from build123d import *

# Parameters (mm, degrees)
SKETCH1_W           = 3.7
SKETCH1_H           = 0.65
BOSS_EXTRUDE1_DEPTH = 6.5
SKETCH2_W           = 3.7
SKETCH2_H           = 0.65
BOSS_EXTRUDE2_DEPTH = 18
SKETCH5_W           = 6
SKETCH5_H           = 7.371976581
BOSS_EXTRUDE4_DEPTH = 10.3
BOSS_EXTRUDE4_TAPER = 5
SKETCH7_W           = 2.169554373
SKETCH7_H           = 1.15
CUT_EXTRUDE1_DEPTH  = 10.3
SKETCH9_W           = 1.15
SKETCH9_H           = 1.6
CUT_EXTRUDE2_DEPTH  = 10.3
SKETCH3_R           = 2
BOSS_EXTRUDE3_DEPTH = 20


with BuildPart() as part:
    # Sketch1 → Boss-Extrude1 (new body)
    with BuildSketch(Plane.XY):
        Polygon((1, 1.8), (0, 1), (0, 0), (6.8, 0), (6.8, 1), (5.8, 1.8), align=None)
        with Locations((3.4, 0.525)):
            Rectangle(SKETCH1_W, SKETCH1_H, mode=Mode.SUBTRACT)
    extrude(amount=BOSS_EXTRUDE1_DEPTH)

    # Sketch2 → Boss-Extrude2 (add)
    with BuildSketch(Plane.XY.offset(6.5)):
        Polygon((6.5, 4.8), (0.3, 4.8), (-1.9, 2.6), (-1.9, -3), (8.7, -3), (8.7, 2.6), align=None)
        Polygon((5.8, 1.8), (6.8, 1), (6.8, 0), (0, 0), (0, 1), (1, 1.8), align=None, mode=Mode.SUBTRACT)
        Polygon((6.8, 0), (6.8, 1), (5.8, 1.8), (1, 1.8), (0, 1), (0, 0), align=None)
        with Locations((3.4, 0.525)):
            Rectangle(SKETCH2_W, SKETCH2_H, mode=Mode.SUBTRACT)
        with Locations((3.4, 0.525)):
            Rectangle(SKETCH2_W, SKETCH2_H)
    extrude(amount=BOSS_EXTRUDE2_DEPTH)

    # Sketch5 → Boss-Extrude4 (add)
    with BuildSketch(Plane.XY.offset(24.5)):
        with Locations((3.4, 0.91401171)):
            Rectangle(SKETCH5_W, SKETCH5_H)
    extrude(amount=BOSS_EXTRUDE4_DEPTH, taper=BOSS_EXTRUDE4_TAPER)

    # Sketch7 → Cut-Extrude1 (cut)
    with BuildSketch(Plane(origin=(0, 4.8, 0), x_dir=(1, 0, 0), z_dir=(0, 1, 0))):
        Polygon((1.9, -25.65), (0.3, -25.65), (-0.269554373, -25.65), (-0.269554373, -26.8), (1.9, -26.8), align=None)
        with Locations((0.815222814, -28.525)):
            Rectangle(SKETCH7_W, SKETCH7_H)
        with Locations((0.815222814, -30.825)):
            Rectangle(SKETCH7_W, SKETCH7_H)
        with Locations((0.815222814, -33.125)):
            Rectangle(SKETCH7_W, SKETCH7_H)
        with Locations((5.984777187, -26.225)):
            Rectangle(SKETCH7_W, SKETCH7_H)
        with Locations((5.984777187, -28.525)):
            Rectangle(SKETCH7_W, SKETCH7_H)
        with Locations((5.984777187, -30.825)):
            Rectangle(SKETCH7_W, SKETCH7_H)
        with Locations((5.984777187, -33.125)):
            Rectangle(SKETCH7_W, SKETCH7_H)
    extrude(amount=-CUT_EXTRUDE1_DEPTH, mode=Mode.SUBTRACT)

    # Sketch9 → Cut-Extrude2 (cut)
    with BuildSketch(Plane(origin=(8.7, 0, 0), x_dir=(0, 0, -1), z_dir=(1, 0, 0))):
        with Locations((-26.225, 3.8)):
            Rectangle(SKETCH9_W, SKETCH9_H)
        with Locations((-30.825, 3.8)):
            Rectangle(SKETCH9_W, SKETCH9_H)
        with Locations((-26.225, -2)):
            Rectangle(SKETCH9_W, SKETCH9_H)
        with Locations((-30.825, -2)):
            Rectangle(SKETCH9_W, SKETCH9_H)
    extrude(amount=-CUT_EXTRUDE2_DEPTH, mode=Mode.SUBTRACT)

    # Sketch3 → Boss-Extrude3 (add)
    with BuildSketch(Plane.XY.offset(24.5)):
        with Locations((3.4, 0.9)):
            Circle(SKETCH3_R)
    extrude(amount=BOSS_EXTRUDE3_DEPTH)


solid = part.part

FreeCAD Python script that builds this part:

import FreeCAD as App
import Part
import Sketcher

V = App.Vector


def add_polygon(sketch, points):
    """Adds a closed chain of lines whose ends are joined by coincident constraints."""
    first, n = sketch.GeometryCount, len(points)
    for a, b in zip(points, points[1:] + points[:1]):
        sketch.addGeometry(Part.LineSegment(App.Vector(*a, 0), App.Vector(*b, 0)), False)
    for i in range(n):
        sketch.addConstraint(Sketcher.Constraint("Coincident", first + i, 2, first + (i + 1) % n, 1))

doc = App.newDocument("Part")
params = doc.addObject("Spreadsheet::Sheet", "Params")
for row, (alias, value) in enumerate([
    ("sketch1_height", "1 mm"),
    ("sketch1_width", "6.8 mm"),
    ("sketch1_width2", "4.8 mm"),
    ("sketch1_width3", "3.7 mm"),
    ("sketch1_height2", "0.65 mm"),
    ("pad1_length", "6.5 mm"),
    ("sketch2_width", "6.2 mm"),
    ("sketch2_width2", "10.6 mm"),
    ("sketch2_height", "5.6 mm"),
    ("pad2_length", "18 mm"),
    ("sketch3_width", "6 mm"),
    ("pad3_length", "10.3 mm"),
    ("pad3_taper", "-5 deg"),
    ("sketch4_height", "1.15 mm"),
    ("pocket1_length", "10.3 mm"),
    ("sketch5_width", "1.6 mm"),
    ("sketch5_height", "1.15 mm"),
    ("pocket2_length", "10.3 mm"),
    ("sketch6_diameter", "4 mm"),
    ("pad4_length", "20 mm"),
], start=1):
    params.set(f"A{row}", alias)
    params.set(f"B{row}", "=" + value)
    params.setAlias(f"B{row}", alias)

body = doc.addObject("PartDesign::Body", "Body")

# Sketch on XY plane
sketch1 = body.newObject("Sketcher::SketchObject", "Sketch")
sketch1.AttachmentSupport = (doc.getObject("XY_Plane"), [""])
sketch1.MapMode = "FlatFace"
add_polygon(sketch1, [(1, 1.8), (0, 1), (0, 0), (6.8, 0), (6.8, 1), (5.8, 1.8)])  # lines 0-5
add_polygon(sketch1, [(5.25, 0.2), (1.55, 0.2), (1.55, 0.85), (5.25, 0.85)])  # lines 6-9
sketch1.addConstraint(Sketcher.Constraint("Vertical", 1))
sketch1.addConstraint(Sketcher.Constraint("Horizontal", 2))
sketch1.addConstraint(Sketcher.Constraint("Vertical", 3))
sketch1.addConstraint(Sketcher.Constraint("Horizontal", 5))
sketch1.addConstraint(Sketcher.Constraint("Horizontal", 6))
sketch1.addConstraint(Sketcher.Constraint("Vertical", 7))
sketch1.addConstraint(Sketcher.Constraint("Horizontal", 8))
sketch1.addConstraint(Sketcher.Constraint("Vertical", 9))
sketch1.addConstraint(Sketcher.Constraint("Coincident", 1, 2, -1, 1))
sketch1.addConstraint(Sketcher.Constraint("Horizontal", 0, 2, 3, 2))
sketch1.addConstraint(Sketcher.Constraint("Equal", 0, 4))
sketch1.addConstraint(Sketcher.Constraint("DistanceY", 1, 2, 1, 1, 1.0))
sketch1.addConstraint(Sketcher.Constraint("DistanceX", 2, 1, 2, 2, 6.8))
sketch1.addConstraint(Sketcher.Constraint("DistanceX", 5, 2, 5, 1, 4.8))
sketch1.addConstraint(Sketcher.Constraint("DistanceX", 6, 2, 6, 1, 3.7))
sketch1.addConstraint(Sketcher.Constraint("DistanceY", 7, 1, 7, 2, 0.65))
sketch1.addConstraint(Sketcher.Constraint("DistanceY", -1, 1, 4, 2, 1.8))
sketch1.addConstraint(Sketcher.Constraint("DistanceY", -1, 1, 6, 2, 0.2))
sketch1.addConstraint(Sketcher.Constraint("DistanceX", -1, 1, 6, 2, 1.55))
sketch1.setExpression("Constraints[21]", "Params.sketch1_height")
sketch1.setExpression("Constraints[22]", "Params.sketch1_width")
sketch1.setExpression("Constraints[23]", "Params.sketch1_width2")
sketch1.setExpression("Constraints[24]", "Params.sketch1_width3")
sketch1.setExpression("Constraints[25]", "Params.sketch1_height2")
pad1 = body.newObject("PartDesign::Pad", "Pad")
pad1.Profile = sketch1
pad1.setExpression("Length", "Params.pad1_length")

# Sketch on XY plane
sketch2 = body.newObject("Sketcher::SketchObject", "Sketch001")
sketch2.AttachmentSupport = (doc.getObject("XY_Plane"), [""])
sketch2.MapMode = "FlatFace"
sketch2.AttachmentOffset = App.Placement(V(0, 0, 6.5), App.Rotation())
add_polygon(sketch2, [(6.5, 4.8), (0.3, 4.8), (-1.9, 2.6), (-1.9, -3), (8.7, -3), (8.7, 2.6)])  # lines 0-5
sketch2.addConstraint(Sketcher.Constraint("Horizontal", 0))
sketch2.addConstraint(Sketcher.Constraint("Vertical", 2))
sketch2.addConstraint(Sketcher.Constraint("Horizontal", 3))
sketch2.addConstraint(Sketcher.Constraint("Vertical", 4))
sketch2.addConstraint(Sketcher.Constraint("Perpendicular", 1, 5))
sketch2.addConstraint(Sketcher.Constraint("Horizontal", 1, 2, 4, 2))
sketch2.addConstraint(Sketcher.Constraint("Equal", 1, 5))
sketch2.addConstraint(Sketcher.Constraint("DistanceX", 0, 2, 0, 1, 6.2))
sketch2.addConstraint(Sketcher.Constraint("DistanceX", 3, 1, 3, 2, 10.6))
sketch2.addConstraint(Sketcher.Constraint("DistanceY", 2, 2, 2, 1, 5.6))
sketch2.addConstraint(Sketcher.Constraint("DistanceY", 2, 2, -1, 1, 3.0))
sketch2.addConstraint(Sketcher.Constraint("DistanceX", -1, 1, 0, 2, 0.3))
sketch2.setExpression("Constraints[13]", "Params.sketch2_width")
sketch2.setExpression("Constraints[14]", "Params.sketch2_width2")
sketch2.setExpression("Constraints[15]", "Params.sketch2_height")
pad2 = body.newObject("PartDesign::Pad", "Pad001")
pad2.Profile = sketch2
pad2.setExpression("Length", "Params.pad2_length")

# Sketch on XY plane
sketch3 = body.newObject("Sketcher::SketchObject", "Sketch002")
sketch3.AttachmentSupport = (doc.getObject("XY_Plane"), [""])
sketch3.MapMode = "FlatFace"
sketch3.AttachmentOffset = App.Placement(V(0, 0, 24.5), App.Rotation())
add_polygon(sketch3, [(0.4, 4.6), (0.4, -2.771977), (6.4, -2.771977), (6.4, 4.6)])  # lines 0-3
sketch3.addConstraint(Sketcher.Constraint("Vertical", 0))
sketch3.addConstraint(Sketcher.Constraint("Horizontal", 1))
sketch3.addConstraint(Sketcher.Constraint("Vertical", 2))
sketch3.addConstraint(Sketcher.Constraint("Horizontal", 3))
sketch3.addConstraint(Sketcher.Constraint("DistanceX", 1, 1, 1, 2, 6.0))
sketch3.addConstraint(Sketcher.Constraint("DistanceX", -1, 1, 0, 2, 0.4))
sketch3.addConstraint(Sketcher.Constraint("DistanceY", -1, 1, 2, 2, 4.6))
sketch3.addConstraint(Sketcher.Constraint("DistanceY", 0, 2, 0, 1, 7.371977))
sketch3.setExpression("Constraints[8]", "Params.sketch3_width")
pad3 = body.newObject("PartDesign::Pad", "Pad002")
pad3.Profile = sketch3
pad3.setExpression("Length", "Params.pad3_length")
pad3.setExpression("TaperAngle", "Params.pad3_taper")

# Sketch on XZ plane
sketch4 = body.newObject("Sketcher::SketchObject", "Sketch003")
sketch4.AttachmentSupport = (doc.getObject("XZ_Plane"), [""])
sketch4.MapMode = "FlatFace"
sketch4.AttachmentOffset = App.Placement(V(0, 0, -4.8), App.Rotation())
add_polygon(sketch4, [(1.9, 25.65), (-0.269554, 25.65), (-0.269554, 26.8), (1.9, 26.8)])  # lines 0-3
add_polygon(sketch4, [(-0.269554, 27.95), (-0.269554, 29.1), (1.9, 29.1), (1.9, 27.95)])  # lines 4-7
add_polygon(sketch4, [(-0.269554, 30.25), (-0.269554, 31.4), (1.9, 31.4), (1.9, 30.25)])  # lines 8-11
add_polygon(sketch4, [(-0.269554, 32.55), (-0.269554, 33.7), (1.9, 33.7), (1.9, 32.55)])  # lines 12-15
add_polygon(sketch4, [(4.9, 25.65), (4.9, 26.8), (7.069554, 26.8), (7.069554, 25.65)])  # lines 16-19
add_polygon(sketch4, [(4.9, 27.95), (4.9, 29.1), (7.069554, 29.1), (7.069554, 27.95)])  # lines 20-23
add_polygon(sketch4, [(4.9, 30.25), (4.9, 31.4), (7.069554, 31.4), (7.069554, 30.25)])  # lines 24-27
add_polygon(sketch4, [(4.9, 32.55), (4.9, 33.7), (7.069554, 33.7), (7.069554, 32.55)])  # lines 28-31
sketch4.addConstraint(Sketcher.Constraint("Horizontal", 0))
sketch4.addConstraint(Sketcher.Constraint("Vertical", 1))
sketch4.addConstraint(Sketcher.Constraint("Horizontal", 2))
sketch4.addConstraint(Sketcher.Constraint("Vertical", 3))
sketch4.addConstraint(Sketcher.Constraint("Vertical", 4))
sketch4.addConstraint(Sketcher.Constraint("Horizontal", 5))
sketch4.addConstraint(Sketcher.Constraint("Vertical", 6))
sketch4.addConstraint(Sketcher.Constraint("Horizontal", 7))
sketch4.addConstraint(Sketcher.Constraint("Vertical", 8))
sketch4.addConstraint(Sketcher.Constraint("Horizontal", 9))
sketch4.addConstraint(Sketcher.Constraint("Vertical", 10))
sketch4.addConstraint(Sketcher.Constraint("Horizontal", 11))
sketch4.addConstraint(Sketcher.Constraint("Vertical", 12))
sketch4.addConstraint(Sketcher.Constraint("Horizontal", 13))
sketch4.addConstraint(Sketcher.Constraint("Vertical", 14))
sketch4.addConstraint(Sketcher.Constraint("Horizontal", 15))
sketch4.addConstraint(Sketcher.Constraint("Vertical", 16))
sketch4.addConstraint(Sketcher.Constraint("Horizontal", 17))
sketch4.addConstraint(Sketcher.Constraint("Vertical", 18))
sketch4.addConstraint(Sketcher.Constraint("Horizontal", 19))
sketch4.addConstraint(Sketcher.Constraint("Vertical", 20))
sketch4.addConstraint(Sketcher.Constraint("Horizontal", 21))
sketch4.addConstraint(Sketcher.Constraint("Vertical", 22))
sketch4.addConstraint(Sketcher.Constraint("Horizontal", 23))
sketch4.addConstraint(Sketcher.Constraint("Vertical", 24))
sketch4.addConstraint(Sketcher.Constraint("Horizontal", 25))
sketch4.addConstraint(Sketcher.Constraint("Vertical", 26))
sketch4.addConstraint(Sketcher.Constraint("Horizontal", 27))
sketch4.addConstraint(Sketcher.Constraint("Vertical", 28))
sketch4.addConstraint(Sketcher.Constraint("Horizontal", 29))
sketch4.addConstraint(Sketcher.Constraint("Vertical", 30))
sketch4.addConstraint(Sketcher.Constraint("Horizontal", 31))
sketch4.addConstraint(Sketcher.Constraint("Horizontal", 2, 2, 16, 2))
sketch4.addConstraint(Sketcher.Constraint("Horizontal", 3, 2, 18, 2))
sketch4.addConstraint(Sketcher.Constraint("Horizontal", 5, 2, 20, 2))
sketch4.addConstraint(Sketcher.Constraint("Horizontal", 7, 2, 22, 2))
sketch4.addConstraint(Sketcher.Constraint("Horizontal", 9, 2, 24, 2))
sketch4.addConstraint(Sketcher.Constraint("Horizontal", 11, 2, 26, 2))
sketch4.addConstraint(Sketcher.Constraint("Horizontal", 13, 2, 28, 2))
sketch4.addConstraint(Sketcher.Constraint("Horizontal", 15, 2, 30, 2))
sketch4.addConstraint(Sketcher.Constraint("Vertical", 1, 2, 4, 2))
sketch4.addConstraint(Sketcher.Constraint("Vertical", 3, 2, 5, 2))
sketch4.addConstraint(Sketcher.Constraint("Vertical", 7, 2, 8, 2))
sketch4.addConstraint(Sketcher.Constraint("Vertical", 6, 2, 9, 2))
sketch4.addConstraint(Sketcher.Constraint("Vertical", 11, 2, 12, 2))
sketch4.addConstraint(Sketcher.Constraint("Vertical", 10, 2, 13, 2))
sketch4.addConstraint(Sketcher.Constraint("Vertical", 19, 2, 20, 2))
sketch4.addConstraint(Sketcher.Constraint("Vertical", 18, 2, 21, 2))
sketch4.addConstraint(Sketcher.Constraint("Vertical", 23, 2, 24, 2))
sketch4.addConstraint(Sketcher.Constraint("Vertical", 22, 2, 25, 2))
sketch4.addConstraint(Sketcher.Constraint("Vertical", 27, 2, 28, 2))
sketch4.addConstraint(Sketcher.Constraint("Vertical", 26, 2, 29, 2))
sketch4.addConstraint(Sketcher.Constraint("Equal", 15, 17))
sketch4.addConstraint(Sketcher.Constraint("Equal", 3, 4))
sketch4.addConstraint(Sketcher.Constraint("Equal", 6, 8))
sketch4.addConstraint(Sketcher.Constraint("Equal", 10, 12))
sketch4.addConstraint(Sketcher.Constraint("DistanceX", 2, 2, 16, 2, 3.0))
sketch4.addConstraint(Sketcher.Constraint("DistanceY", 1, 1, 1, 2, 1.15))
sketch4.addConstraint(Sketcher.Constraint("DistanceY", -1, 1, 1, 2, 26.8))
sketch4.addConstraint(Sketcher.Constraint("DistanceX", -1, 1, 2, 2, 1.9))
sketch4.addConstraint(Sketcher.Constraint("DistanceY", -1, 1, 4, 2, 29.1))
sketch4.addConstraint(Sketcher.Constraint("DistanceY", -1, 1, 8, 2, 31.4))
sketch4.addConstraint(Sketcher.Constraint("DistanceY", -1, 1, 12, 2, 33.7))
sketch4.addConstraint(Sketcher.Constraint("DistanceX", 0, 2, 0, 1, 2.169554))
sketch4.setExpression("Constraints[89]", "Params.sketch4_height")
pocket1 = body.newObject("PartDesign::Pocket", "Pocket")
pocket1.Profile = sketch4
pocket1.setExpression("Length", "Params.pocket1_length")
pocket1.Reversed = True

# Sketch on YZ plane
sketch5 = body.newObject("Sketcher::SketchObject", "Sketch004")
sketch5.AttachmentSupport = (doc.getObject("YZ_Plane"), [""])
sketch5.MapMode = "FlatFace"
sketch5.AttachmentOffset = App.Placement(V(0, 0, 8.7), App.Rotation())
add_polygon(sketch5, [(4.6, 26.8), (3, 26.8), (3, 25.65), (4.6, 25.65)])  # lines 0-3
add_polygon(sketch5, [(4.6, 31.4), (3, 31.4), (3, 30.25), (4.6, 30.25)])  # lines 4-7
add_polygon(sketch5, [(-1.2, 26.8), (-2.8, 26.8), (-2.8, 25.65), (-1.2, 25.65)])  # lines 8-11
add_polygon(sketch5, [(-1.2, 31.4), (-2.8, 31.4), (-2.8, 30.25), (-1.2, 30.25)])  # lines 12-15
sketch5.addConstraint(Sketcher.Constraint("Horizontal", 0))
sketch5.addConstraint(Sketcher.Constraint("Vertical", 1))
sketch5.addConstraint(Sketcher.Constraint("Horizontal", 2))
sketch5.addConstraint(Sketcher.Constraint("Vertical", 3))
sketch5.addConstraint(Sketcher.Constraint("Horizontal", 4))
sketch5.addConstraint(Sketcher.Constraint("Vertical", 5))
sketch5.addConstraint(Sketcher.Constraint("Horizontal", 6))
sketch5.addConstraint(Sketcher.Constraint("Vertical", 7))
sketch5.addConstraint(Sketcher.Constraint("Horizontal", 8))
sketch5.addConstraint(Sketcher.Constraint("Vertical", 9))
sketch5.addConstraint(Sketcher.Constraint("Horizontal", 10))
sketch5.addConstraint(Sketcher.Constraint("Vertical", 11))
sketch5.addConstraint(Sketcher.Constraint("Horizontal", 12))
sketch5.addConstraint(Sketcher.Constraint("Vertical", 13))
sketch5.addConstraint(Sketcher.Constraint("Horizontal", 14))
sketch5.addConstraint(Sketcher.Constraint("Vertical", 15))
sketch5.addConstraint(Sketcher.Constraint("Horizontal", 3, 2, 8, 2))
sketch5.addConstraint(Sketcher.Constraint("Horizontal", 2, 2, 9, 2))
sketch5.addConstraint(Sketcher.Constraint("Horizontal", 7, 2, 12, 2))
sketch5.addConstraint(Sketcher.Constraint("Horizontal", 6, 2, 13, 2))
sketch5.addConstraint(Sketcher.Constraint("Vertical", 1, 2, 4, 2))
sketch5.addConstraint(Sketcher.Constraint("Vertical", 3, 2, 6, 2))
sketch5.addConstraint(Sketcher.Constraint("Vertical", 9, 2, 12, 2))
sketch5.addConstraint(Sketcher.Constraint("Vertical", 11, 2, 14, 2))
sketch5.addConstraint(Sketcher.Constraint("Equal", 6, 8))
sketch5.addConstraint(Sketcher.Constraint("Equal", 3, 5))
sketch5.addConstraint(Sketcher.Constraint("DistanceX", 0, 2, 0, 1, 1.6))
sketch5.addConstraint(Sketcher.Constraint("DistanceX", -1, 1, 0, 2, 3.0))
sketch5.addConstraint(Sketcher.Constraint("DistanceY", 1, 2, 1, 1, 1.15))
sketch5.addConstraint(Sketcher.Constraint("DistanceY", -1, 1, 0, 2, 26.8))
sketch5.addConstraint(Sketcher.Constraint("DistanceY", -1, 1, 4, 2, 31.4))
sketch5.addConstraint(Sketcher.Constraint("DistanceX", 8, 2, -1, 1, 2.8))
sketch5.setExpression("Constraints[42]", "Params.sketch5_width")
sketch5.setExpression("Constraints[44]", "Params.sketch5_height")
pocket2 = body.newObject("PartDesign::Pocket", "Pocket001")
pocket2.Profile = sketch5
pocket2.setExpression("Length", "Params.pocket2_length")

# Sketch on XY plane
sketch6 = body.newObject("Sketcher::SketchObject", "Sketch005")
sketch6.AttachmentSupport = (doc.getObject("XY_Plane"), [""])
sketch6.MapMode = "FlatFace"
sketch6.AttachmentOffset = App.Placement(V(0, 0, 24.5), App.Rotation())
sketch6.addGeometry(Part.Circle(V(3.4, 0.9, 0), V(0, 0, 1), 2), False)
sketch6.addConstraint(Sketcher.Constraint("Diameter", 0, 4.0))
sketch6.addConstraint(Sketcher.Constraint("DistanceX", -1, 1, 0, 3, 3.4))
sketch6.addConstraint(Sketcher.Constraint("DistanceY", -1, 1, 0, 3, 0.9))
sketch6.setExpression("Constraints[0]", "Params.sketch6_diameter")
pad4 = body.newObject("PartDesign::Pad", "Pad003")
pad4.Profile = sketch6
pad4.setExpression("Length", "Params.pad4_length")

doc.recompute()
